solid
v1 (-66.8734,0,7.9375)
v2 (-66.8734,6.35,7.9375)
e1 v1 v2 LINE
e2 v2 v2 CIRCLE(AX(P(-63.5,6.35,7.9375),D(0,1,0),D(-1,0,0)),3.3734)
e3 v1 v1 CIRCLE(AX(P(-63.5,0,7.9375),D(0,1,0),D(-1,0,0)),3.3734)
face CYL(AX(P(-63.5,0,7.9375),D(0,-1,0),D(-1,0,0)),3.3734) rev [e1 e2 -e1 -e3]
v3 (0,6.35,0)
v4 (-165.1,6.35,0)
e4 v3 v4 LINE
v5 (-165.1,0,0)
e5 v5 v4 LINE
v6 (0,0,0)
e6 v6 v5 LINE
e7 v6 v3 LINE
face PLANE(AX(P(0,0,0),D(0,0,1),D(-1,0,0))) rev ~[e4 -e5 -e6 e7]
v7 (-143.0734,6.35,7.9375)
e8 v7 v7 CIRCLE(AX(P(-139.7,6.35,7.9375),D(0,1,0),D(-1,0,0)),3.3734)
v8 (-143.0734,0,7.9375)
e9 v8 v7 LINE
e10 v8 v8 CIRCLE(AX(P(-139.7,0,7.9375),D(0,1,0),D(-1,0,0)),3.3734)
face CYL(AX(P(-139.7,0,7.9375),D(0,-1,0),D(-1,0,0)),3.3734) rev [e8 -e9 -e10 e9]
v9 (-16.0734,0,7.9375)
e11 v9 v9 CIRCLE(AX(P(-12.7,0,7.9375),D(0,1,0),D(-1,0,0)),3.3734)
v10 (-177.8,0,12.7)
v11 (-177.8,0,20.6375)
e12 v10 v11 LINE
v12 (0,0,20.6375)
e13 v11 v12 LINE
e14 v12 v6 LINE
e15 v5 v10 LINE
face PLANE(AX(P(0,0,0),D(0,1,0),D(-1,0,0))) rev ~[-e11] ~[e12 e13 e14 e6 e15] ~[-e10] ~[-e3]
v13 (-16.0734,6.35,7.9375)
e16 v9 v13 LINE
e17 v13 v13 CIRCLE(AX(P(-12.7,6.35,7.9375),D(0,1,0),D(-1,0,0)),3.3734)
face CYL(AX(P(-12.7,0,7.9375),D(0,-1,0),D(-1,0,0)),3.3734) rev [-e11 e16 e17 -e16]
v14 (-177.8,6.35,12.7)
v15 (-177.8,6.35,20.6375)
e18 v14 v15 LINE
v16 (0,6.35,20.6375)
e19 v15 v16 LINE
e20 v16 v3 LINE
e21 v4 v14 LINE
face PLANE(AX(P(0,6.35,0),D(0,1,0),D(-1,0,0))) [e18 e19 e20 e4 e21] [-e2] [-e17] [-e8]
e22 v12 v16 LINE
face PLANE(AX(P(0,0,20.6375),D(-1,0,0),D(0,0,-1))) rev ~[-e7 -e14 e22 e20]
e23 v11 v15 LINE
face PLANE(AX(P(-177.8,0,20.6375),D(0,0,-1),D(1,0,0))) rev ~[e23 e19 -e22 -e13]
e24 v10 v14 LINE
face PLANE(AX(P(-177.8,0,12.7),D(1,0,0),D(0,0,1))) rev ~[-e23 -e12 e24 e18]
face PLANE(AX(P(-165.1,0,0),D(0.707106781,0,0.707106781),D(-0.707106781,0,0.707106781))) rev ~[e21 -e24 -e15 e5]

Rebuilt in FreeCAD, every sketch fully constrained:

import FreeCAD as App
import Part
import Sketcher

V = App.Vector
Q = App.Units.Quantity


def add_polygon(sketch, points):
    """Adds a closed chain of lines whose ends are joined by coincident constraints."""
    first, n = sketch.GeometryCount, len(points)
    for a, b in zip(points, points[1:] + points[:1]):
        sketch.addGeometry(Part.LineSegment(App.Vector(*a, 0), App.Vector(*b, 0)), False)
    for i in range(n):
        sketch.addConstraint(Sketcher.Constraint("Coincident", first + i, 2, first + (i + 1) % n, 1))

doc = App.newDocument("Part")
body = doc.addObject("PartDesign::Body", "Body")

# Sketch on XZ plane
sketch1 = body.newObject("Sketcher::SketchObject", "Sketch")
sketch1.AttachmentSupport = (doc.getObject("XZ_Plane"), [""])
sketch1.MapMode = "FlatFace"
add_polygon(sketch1, [(0, 20.6), (0, 0), (-165.1, 0), (-177.8, 12.7), (-177.8, 20.6)])  # lines 0-4
sketch1.addGeometry(Part.Circle(V(-12.7, 7.9, 0), V(0, 0, 1), 3.4), False)  # 5
sketch1.addGeometry(Part.Circle(V(-63.5, 7.9, 0), V(0, 0, 1), 3.4), False)  # 6
sketch1.addGeometry(Part.Circle(V(-139.7, 7.9, 0), V(0, 0, 1), 3.4), False)  # 7
sketch1.addConstraint([
    Sketcher.Constraint("Vertical", 0),
    Sketcher.Constraint("Horizontal", 1),
    Sketcher.Constraint("Vertical", 3),
    Sketcher.Constraint("Horizontal", 4),
    Sketcher.Constraint("Coincident", 0, 2, -1, 1),
    Sketcher.Constraint("Equal", 5, 6),
    Sketcher.Constraint("Equal", 6, 7),
    Sketcher.Constraint("Horizontal", 5, 3, 6, 3),
    Sketcher.Constraint("Horizontal", 6, 3, 7, 3),
    Sketcher.Constraint("DistanceX", 4, 1, 4, 2, Q("7 in")),
    Sketcher.Constraint("Diameter", 5, Q("0.265622 in")),
    Sketcher.Constraint("DistanceX", 5, 3, -1, 1, Q("0.5 in")),
    Sketcher.Constraint("DistanceX", 6, 3, -1, 1, Q("2.5 in")),
    Sketcher.Constraint("DistanceX", 7, 3, -1, 1, Q("5.5 in")),
    Sketcher.Constraint("DistanceY", -1, 1, 2, 2, Q("0.5 in")),
    Sketcher.Constraint("DistanceX", 2, 2, 1, 2, Q("0.5 in")),
    Sketcher.Constraint("DistanceY", 7, 3, 3, 2, Q("0.5 in")),
    Sketcher.Constraint("DistanceY", 0, 2, 0, 1, Q("0.8125 in")),
])
pad1 = body.newObject("PartDesign::Pad", "Pad")
pad1.Profile = sketch1
pad1.Length = Q("0.25 in")
pad1.Reversed = True

doc.recompute()
